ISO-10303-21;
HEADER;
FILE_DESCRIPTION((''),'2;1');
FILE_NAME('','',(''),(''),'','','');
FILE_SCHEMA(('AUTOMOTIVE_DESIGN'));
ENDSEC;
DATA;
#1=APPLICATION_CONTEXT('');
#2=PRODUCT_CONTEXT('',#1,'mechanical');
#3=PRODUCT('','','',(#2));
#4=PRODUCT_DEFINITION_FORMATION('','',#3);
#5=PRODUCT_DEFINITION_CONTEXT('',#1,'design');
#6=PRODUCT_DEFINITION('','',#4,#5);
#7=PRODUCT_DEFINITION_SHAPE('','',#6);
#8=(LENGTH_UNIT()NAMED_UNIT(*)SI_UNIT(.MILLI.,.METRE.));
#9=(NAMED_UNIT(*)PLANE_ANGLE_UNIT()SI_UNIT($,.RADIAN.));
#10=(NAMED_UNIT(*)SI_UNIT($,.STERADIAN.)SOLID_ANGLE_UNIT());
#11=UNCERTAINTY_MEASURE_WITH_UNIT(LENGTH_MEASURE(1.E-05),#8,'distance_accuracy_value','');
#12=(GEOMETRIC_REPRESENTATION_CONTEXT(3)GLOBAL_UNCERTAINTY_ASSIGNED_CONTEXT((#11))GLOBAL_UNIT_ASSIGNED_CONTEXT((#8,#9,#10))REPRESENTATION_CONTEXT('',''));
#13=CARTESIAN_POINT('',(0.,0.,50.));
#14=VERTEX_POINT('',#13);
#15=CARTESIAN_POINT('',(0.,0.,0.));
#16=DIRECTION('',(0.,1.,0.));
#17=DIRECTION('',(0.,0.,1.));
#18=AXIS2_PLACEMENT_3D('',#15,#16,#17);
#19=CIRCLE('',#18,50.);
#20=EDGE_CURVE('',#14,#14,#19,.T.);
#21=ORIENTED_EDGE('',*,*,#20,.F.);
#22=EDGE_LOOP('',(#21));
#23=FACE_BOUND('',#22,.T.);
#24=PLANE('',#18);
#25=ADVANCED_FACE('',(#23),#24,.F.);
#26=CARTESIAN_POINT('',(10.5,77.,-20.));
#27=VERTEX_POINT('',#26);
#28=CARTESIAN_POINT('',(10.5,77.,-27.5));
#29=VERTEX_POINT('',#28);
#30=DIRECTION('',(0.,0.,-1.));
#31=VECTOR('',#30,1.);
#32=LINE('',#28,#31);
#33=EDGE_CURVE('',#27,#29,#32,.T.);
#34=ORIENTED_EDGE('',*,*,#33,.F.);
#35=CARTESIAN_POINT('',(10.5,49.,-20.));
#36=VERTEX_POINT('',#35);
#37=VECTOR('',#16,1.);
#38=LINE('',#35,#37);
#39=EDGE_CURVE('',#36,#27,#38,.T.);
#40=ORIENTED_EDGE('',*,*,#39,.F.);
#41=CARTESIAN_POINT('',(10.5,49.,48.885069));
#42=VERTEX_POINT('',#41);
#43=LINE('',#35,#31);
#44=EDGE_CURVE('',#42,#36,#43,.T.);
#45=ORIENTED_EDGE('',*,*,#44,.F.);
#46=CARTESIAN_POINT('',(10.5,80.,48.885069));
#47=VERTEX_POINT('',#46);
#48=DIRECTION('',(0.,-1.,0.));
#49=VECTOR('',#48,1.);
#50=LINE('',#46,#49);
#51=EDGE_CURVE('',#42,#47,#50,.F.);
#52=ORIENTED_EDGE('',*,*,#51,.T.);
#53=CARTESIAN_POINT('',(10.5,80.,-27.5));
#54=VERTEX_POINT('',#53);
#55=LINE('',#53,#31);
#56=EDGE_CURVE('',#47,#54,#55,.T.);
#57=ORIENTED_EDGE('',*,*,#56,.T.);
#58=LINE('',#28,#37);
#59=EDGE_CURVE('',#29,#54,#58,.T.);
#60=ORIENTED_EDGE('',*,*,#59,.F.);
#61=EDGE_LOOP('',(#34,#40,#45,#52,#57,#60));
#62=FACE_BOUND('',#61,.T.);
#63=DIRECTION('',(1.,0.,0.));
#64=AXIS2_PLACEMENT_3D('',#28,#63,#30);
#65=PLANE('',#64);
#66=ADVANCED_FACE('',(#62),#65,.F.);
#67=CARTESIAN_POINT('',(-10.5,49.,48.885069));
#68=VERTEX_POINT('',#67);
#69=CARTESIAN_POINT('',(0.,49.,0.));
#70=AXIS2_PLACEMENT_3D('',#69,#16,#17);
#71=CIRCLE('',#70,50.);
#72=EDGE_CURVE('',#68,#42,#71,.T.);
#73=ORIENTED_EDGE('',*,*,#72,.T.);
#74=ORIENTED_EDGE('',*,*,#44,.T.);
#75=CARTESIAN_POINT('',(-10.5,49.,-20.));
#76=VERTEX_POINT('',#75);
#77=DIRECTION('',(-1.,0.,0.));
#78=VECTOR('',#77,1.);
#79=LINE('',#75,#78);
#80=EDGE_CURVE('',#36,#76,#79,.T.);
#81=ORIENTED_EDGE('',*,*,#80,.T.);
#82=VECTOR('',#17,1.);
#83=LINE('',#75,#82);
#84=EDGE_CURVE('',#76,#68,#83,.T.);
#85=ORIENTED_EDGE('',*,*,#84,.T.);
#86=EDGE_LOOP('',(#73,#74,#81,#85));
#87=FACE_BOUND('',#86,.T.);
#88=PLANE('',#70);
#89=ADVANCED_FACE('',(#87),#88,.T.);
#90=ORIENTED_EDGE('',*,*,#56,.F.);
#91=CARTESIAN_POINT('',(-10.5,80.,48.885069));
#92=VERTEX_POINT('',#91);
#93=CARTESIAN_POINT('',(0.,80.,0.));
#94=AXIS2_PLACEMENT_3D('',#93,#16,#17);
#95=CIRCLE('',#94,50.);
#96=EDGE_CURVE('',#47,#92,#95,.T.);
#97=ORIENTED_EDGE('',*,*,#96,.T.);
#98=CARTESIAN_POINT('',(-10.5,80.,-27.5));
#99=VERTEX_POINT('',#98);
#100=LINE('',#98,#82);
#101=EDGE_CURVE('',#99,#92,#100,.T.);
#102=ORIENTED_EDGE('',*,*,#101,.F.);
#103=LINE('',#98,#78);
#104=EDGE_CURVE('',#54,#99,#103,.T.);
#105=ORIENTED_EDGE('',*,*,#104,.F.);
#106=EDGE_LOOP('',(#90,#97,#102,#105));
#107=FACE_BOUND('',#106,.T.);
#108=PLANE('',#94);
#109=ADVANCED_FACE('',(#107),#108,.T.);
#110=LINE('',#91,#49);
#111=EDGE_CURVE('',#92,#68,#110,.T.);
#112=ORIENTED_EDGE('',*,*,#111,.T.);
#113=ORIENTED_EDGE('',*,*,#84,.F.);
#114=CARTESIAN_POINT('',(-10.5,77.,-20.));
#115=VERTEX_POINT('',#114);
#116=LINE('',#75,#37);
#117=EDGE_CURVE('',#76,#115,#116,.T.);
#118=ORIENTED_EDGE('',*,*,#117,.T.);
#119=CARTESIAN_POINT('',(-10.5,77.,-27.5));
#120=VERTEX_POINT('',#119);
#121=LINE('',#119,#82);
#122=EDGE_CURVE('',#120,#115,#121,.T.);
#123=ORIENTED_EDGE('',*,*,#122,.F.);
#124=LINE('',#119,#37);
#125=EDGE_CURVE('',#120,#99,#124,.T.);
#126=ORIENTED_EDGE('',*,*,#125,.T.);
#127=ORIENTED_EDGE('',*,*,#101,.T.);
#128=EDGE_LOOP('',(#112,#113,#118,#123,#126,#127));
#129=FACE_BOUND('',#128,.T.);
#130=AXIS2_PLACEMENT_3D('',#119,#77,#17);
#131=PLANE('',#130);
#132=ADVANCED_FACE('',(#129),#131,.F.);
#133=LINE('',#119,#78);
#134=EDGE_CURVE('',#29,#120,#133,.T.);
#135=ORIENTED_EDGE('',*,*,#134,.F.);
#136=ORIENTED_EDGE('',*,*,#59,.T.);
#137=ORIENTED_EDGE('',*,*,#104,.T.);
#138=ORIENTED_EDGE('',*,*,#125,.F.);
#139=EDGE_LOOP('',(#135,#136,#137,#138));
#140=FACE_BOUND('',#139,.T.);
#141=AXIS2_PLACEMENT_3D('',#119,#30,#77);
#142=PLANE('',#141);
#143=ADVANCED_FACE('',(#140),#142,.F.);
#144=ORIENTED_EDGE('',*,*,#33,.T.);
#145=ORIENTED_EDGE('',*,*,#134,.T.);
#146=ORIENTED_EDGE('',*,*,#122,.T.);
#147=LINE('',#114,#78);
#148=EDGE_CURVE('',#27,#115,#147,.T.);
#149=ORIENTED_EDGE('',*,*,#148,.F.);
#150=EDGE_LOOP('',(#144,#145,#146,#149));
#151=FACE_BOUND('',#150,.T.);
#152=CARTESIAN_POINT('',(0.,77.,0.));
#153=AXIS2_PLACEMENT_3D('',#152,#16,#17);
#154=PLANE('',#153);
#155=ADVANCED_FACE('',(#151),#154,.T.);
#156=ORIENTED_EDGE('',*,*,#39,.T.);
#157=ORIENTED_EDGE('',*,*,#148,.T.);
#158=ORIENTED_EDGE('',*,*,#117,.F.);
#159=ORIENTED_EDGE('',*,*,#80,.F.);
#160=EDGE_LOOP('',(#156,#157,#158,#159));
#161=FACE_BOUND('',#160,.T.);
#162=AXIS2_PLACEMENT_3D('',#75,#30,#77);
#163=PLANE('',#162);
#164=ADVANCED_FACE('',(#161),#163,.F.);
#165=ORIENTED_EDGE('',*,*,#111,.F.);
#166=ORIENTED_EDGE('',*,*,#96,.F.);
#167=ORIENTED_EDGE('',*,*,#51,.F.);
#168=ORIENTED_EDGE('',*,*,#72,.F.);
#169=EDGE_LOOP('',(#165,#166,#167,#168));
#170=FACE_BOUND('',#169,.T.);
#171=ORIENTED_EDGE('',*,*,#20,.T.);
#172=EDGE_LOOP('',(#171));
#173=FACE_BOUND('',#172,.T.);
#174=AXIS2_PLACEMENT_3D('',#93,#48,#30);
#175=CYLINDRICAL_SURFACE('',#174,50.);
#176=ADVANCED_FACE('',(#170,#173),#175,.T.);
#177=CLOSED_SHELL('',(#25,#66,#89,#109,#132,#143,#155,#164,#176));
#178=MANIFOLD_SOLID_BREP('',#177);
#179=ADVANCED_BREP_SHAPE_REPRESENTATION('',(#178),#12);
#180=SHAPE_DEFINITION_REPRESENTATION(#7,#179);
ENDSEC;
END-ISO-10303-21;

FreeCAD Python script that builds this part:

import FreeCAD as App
import Part
import Sketcher
Q = App.Units.Quantity


def add_polygon(sketch, points):
    """Adds a closed chain of lines whose ends are joined by coincident constraints."""
    first, n = sketch.GeometryCount, len(points)
    for a, b in zip(points, points[1:] + points[:1]):
        sketch.addGeometry(Part.LineSegment(App.Vector(*a, 0), App.Vector(*b, 0)), False)
    for i in range(n):
        sketch.addConstraint(Sketcher.Constraint("Coincident", first + i, 2, first + (i + 1) % n, 1))

doc = App.newDocument("Part")
body = doc.addObject("PartDesign::Body", "Body")

sketch1 = body.newObject("Sketcher::SketchObject", "Sketch")
sketch1.AttachmentSupport = (doc.getObject("XZ_Plane"), [""])
sketch1.MapMode = "FlatFace"
sketch1.addGeometry(Part.Circle(App.Vector(0, 0, 0), App.Vector(0, 0, 1), 50), False)
sketch1.addConstraint(Sketcher.Constraint("Coincident", 0, 3, -1, 1))
sketch1.addConstraint(Sketcher.Constraint("Diameter", 0, Q("100 mm")))
pad1 = body.newObject("PartDesign::Pad", "Pad")
pad1.Profile = sketch1
pad1.Length = 80
pad1.Reversed = True

sketch2 = body.newObject("Sketcher::SketchObject", "Sketch001")
sketch2.AttachmentSupport = (doc.getObject("XZ_Plane"), [""])
sketch2.MapMode = "FlatFace"
sketch2.AttachmentOffset = App.Placement(App.Vector(0, 0, -80), App.Rotation())
add_polygon(sketch2, [(-10.5, -27.5), (-10.5, 27.5), (10.5, 27.5), (10.5, -27.5)])
sketch2.addConstraint(Sketcher.Constraint("Vertical", 0))
sketch2.addConstraint(Sketcher.Constraint("Horizontal", 1))
sketch2.addConstraint(Sketcher.Constraint("Vertical", 2))
sketch2.addConstraint(Sketcher.Constraint("Horizontal", 3))
sketch2.addConstraint(Sketcher.Constraint("Symmetric", 0, 2, 2, 2, -1, 1))
sketch2.addConstraint(Sketcher.Constraint("DistanceX", 1, 1, 1, 2, Q("21 mm")))
sketch2.addConstraint(Sketcher.Constraint("DistanceY", 0, 1, 0, 2, Q("55 mm")))
pocket1 = body.newObject("PartDesign::Pocket", "Pocket")
pocket1.Profile = sketch2
pocket1.Length = 3
pocket1.Reversed = True

sketch3 = body.newObject("Sketcher::SketchObject", "Sketch002")
sketch3.AttachmentSupport = (doc.getObject("XZ_Plane"), [""])
sketch3.MapMode = "FlatFace"
sketch3.AttachmentOffset = App.Placement(App.Vector(0, 0, -77), App.Rotation())
add_polygon(sketch3, [(-10.5, -20), (-10.5, 20), (10.5, 20), (10.5, -20)])
sketch3.addConstraint(Sketcher.Constraint("Vertical", 0))
sketch3.addConstraint(Sketcher.Constraint("Horizontal", 1))
sketch3.addConstraint(Sketcher.Constraint("Vertical", 2))
sketch3.addConstraint(Sketcher.Constraint("Horizontal", 3))
sketch3.addConstraint(Sketcher.Constraint("Symmetric", 0, 2, 2, 2, -1, 1))
sketch3.addConstraint(Sketcher.Constraint("DistanceX", 1, 1, 1, 2, Q("21 mm")))
sketch3.addConstraint(Sketcher.Constraint("DistanceY", 0, 1, 0, 2, Q("40 mm")))
pocket2 = body.newObject("PartDesign::Pocket", "Pocket001")
pocket2.Profile = sketch3
pocket2.Length = 28
pocket2.Reversed = True

sketch4 = body.newObject("Sketcher::SketchObject", "Sketch003")
sketch4.AttachmentSupport = (doc.getObject("XZ_Plane"), [""])
sketch4.MapMode = "FlatFace"
sketch4.AttachmentOffset = App.Placement(App.Vector(0, 0, -80), App.Rotation())
add_polygon(sketch4, [(-10.5, 0), (-10.5, 56.862422), (10.5, 56.862422), (10.5, 0)])
sketch4.addConstraint(Sketcher.Constraint("Vertical", 0))
sketch4.addConstraint(Sketcher.Constraint("Horizontal", 1))
sketch4.addConstraint(Sketcher.Constraint("Vertical", 2))
sketch4.addConstraint(Sketcher.Constraint("Horizontal", 3))
sketch4.addConstraint(Sketcher.Constraint("Symmetric", 2, 2, 3, 2, -1, 1))
sketch4.addConstraint(Sketcher.Constraint("DistanceX", 1, 1, 1, 2, Q("21 mm")))
sketch4.addConstraint(Sketcher.Constraint("DistanceY", 0, 1, 0, 2, Q("56.862422 mm")))
pocket3 = body.newObject("PartDesign::Pocket", "Pocket002")
pocket3.Profile = sketch4
pocket3.Length = 31
pocket3.Reversed = True

doc.recompute()
